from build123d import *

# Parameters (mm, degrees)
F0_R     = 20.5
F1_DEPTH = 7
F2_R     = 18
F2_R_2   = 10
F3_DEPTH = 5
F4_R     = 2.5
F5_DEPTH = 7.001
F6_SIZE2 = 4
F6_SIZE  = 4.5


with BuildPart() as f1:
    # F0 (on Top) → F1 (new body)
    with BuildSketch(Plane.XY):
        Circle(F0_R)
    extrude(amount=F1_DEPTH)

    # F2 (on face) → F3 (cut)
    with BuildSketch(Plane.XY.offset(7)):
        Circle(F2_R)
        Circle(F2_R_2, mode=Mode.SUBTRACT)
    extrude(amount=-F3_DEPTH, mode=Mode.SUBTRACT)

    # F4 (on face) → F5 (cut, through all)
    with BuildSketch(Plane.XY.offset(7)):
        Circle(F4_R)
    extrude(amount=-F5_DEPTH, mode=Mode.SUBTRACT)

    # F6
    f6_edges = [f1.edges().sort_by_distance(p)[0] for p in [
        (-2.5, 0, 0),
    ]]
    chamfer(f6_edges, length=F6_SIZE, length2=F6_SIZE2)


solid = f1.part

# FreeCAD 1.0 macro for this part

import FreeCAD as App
import Part
import Sketcher
Q = App.Units.Quantity


def edges_at(feature, points):
    """Names of the edges that pass closest to the given points."""
    edges = feature.Shape.Edges
    near = lambda p: min(range(len(edges)), key=lambda i: edges[i].distToShape(Part.Vertex(*p))[0])
    return sorted({f"Edge{near(p) + 1}" for p in points})

doc = App.newDocument("Part")
body = doc.addObject("PartDesign::Body", "Body")

# Sketch on XY plane
sketch1 = body.newObject("Sketcher::SketchObject", "Sketch")
sketch1.AttachmentSupport = (doc.getObject("XY_Plane"), [""])
sketch1.MapMode = "FlatFace"
sketch1.addGeometry(Part.Circle(App.Vector(0, 0, 0), App.Vector(0, 0, 1), 20.5), False)
sketch1.addConstraint([
    Sketcher.Constraint("Coincident", 0, 3, -1, 1),
    Sketcher.Constraint("Diameter", 0, Q("41 mm")),
])
pad1 = body.newObject("PartDesign::Pad", "Pad")
pad1.Profile = sketch1
pad1.Length = 7

# Sketch on XY plane
sketch2 = body.newObject("Sketcher::SketchObject", "Sketch001")
sketch2.AttachmentSupport = (doc.getObject("XY_Plane"), [""])
sketch2.MapMode = "FlatFace"
sketch2.AttachmentOffset = App.Placement(App.Vector(0, 0, 7), App.Rotation())
sketch2.addGeometry([
    Part.Circle(App.Vector(0, 0, 0), App.Vector(0, 0, 1), 18),
    Part.Circle(App.Vector(0, 0, 0), App.Vector(0, 0, 1), 10),
], False)
sketch2.addConstraint([
    Sketcher.Constraint("Coincident", 0, 3, -1, 1),
    Sketcher.Constraint("Coincident", 1, 3, -1, 1),
    Sketcher.Constraint("Diameter", 0, Q("36 mm")),
    Sketcher.Constraint("Diameter", 1, Q("20 mm")),
])
pocket1 = body.newObject("PartDesign::Pocket", "Pocket")
pocket1.Profile = sketch2
pocket1.Length = 5

# Sketch on XY plane
sketch3 = body.newObject("Sketcher::SketchObject", "Sketch002")
sketch3.AttachmentSupport = (doc.getObject("XY_Plane"), [""])
sketch3.MapMode = "FlatFace"
sketch3.AttachmentOffset = App.Placement(App.Vector(0, 0, 7), App.Rotation())
sketch3.addGeometry(Part.Circle(App.Vector(0, 0, 0), App.Vector(0, 0, 1), 2.5), False)
sketch3.addConstraint([
    Sketcher.Constraint("Coincident", 0, 3, -1, 1),
    Sketcher.Constraint("Diameter", 0, Q("5 mm")),
])
pocket2 = body.newObject("PartDesign::Pocket", "Pocket001")
pocket2.Profile = sketch3
pocket2.Type = "ThroughAll"
doc.recompute()

chamfer = body.newObject("PartDesign::Chamfer", "Chamfer")
chamfer.Base = (pocket2, edges_at(pocket2, [(-2.5, 0, 0)]))
chamfer.ChamferType = "Two distances"
chamfer.Size = 4.5
chamfer.Size2 = 4

doc.recompute()
